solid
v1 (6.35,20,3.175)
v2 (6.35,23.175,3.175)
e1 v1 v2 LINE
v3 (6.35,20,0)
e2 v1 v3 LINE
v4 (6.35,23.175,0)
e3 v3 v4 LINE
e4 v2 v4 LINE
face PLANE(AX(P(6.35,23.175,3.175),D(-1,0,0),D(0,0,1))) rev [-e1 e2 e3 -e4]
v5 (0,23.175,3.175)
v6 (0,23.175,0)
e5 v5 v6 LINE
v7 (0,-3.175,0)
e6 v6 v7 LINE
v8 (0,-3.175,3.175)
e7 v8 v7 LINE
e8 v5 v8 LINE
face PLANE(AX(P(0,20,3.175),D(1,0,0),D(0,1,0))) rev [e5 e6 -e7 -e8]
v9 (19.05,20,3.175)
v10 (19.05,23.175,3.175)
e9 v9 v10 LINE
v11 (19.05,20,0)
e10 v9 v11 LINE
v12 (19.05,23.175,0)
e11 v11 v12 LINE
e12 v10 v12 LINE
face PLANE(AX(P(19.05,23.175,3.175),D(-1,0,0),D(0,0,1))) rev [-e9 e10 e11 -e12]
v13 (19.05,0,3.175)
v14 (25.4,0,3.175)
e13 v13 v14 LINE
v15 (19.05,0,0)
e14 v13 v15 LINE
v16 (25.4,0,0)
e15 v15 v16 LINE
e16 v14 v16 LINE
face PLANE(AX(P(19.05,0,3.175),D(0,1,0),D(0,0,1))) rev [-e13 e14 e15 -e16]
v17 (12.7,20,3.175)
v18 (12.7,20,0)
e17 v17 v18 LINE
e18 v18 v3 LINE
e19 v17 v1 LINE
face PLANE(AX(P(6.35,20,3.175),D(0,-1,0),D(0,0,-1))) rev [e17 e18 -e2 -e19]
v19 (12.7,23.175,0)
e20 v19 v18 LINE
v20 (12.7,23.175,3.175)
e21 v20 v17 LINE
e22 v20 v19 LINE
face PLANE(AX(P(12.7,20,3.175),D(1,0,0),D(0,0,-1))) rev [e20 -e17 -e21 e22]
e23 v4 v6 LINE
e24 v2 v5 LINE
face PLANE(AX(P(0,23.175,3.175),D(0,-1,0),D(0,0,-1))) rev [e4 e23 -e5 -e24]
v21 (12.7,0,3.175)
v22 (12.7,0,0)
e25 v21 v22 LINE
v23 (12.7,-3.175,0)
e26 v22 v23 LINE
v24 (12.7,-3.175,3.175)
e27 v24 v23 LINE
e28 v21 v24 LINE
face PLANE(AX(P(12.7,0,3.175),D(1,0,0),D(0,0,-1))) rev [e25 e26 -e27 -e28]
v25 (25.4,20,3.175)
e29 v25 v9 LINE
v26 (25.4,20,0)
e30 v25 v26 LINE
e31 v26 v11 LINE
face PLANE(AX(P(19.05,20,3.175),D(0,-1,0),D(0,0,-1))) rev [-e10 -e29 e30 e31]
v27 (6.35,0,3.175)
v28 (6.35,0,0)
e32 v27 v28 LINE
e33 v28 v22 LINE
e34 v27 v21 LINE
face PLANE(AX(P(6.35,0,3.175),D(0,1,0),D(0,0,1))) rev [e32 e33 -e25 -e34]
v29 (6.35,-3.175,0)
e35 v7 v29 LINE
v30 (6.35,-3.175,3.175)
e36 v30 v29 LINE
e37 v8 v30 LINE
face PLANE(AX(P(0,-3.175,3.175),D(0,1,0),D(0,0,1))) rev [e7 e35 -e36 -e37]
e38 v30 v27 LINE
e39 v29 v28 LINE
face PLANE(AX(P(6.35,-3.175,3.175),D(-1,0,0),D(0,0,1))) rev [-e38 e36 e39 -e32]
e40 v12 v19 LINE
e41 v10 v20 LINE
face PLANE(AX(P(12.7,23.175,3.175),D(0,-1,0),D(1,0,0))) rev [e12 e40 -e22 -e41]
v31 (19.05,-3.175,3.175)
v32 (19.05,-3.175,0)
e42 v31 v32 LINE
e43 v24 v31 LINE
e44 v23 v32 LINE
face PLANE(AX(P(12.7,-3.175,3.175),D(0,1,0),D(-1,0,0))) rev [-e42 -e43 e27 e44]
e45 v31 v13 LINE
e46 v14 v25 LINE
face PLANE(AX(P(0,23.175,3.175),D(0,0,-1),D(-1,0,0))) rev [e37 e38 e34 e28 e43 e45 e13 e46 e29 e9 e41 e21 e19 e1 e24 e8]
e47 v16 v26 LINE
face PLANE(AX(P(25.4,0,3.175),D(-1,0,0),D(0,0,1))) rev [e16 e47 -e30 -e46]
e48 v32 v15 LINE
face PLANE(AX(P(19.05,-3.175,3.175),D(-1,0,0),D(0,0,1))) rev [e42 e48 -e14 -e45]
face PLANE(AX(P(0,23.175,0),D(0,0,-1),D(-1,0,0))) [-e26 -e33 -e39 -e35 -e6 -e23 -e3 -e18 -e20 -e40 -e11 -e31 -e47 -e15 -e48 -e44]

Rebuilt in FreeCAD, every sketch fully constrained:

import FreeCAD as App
import Part
import Sketcher

V = App.Vector
Q = App.Units.Quantity


def add_polygon(sketch, points):
    """Adds a closed chain of lines whose ends are joined by coincident constraints."""
    first, n = sketch.GeometryCount, len(points)
    for a, b in zip(points, points[1:] + points[:1]):
        sketch.addGeometry(Part.LineSegment(App.Vector(*a, 0), App.Vector(*b, 0)), False)
    for i in range(n):
        sketch.addConstraint(Sketcher.Constraint("Coincident", first + i, 2, first + (i + 1) % n, 1))

doc = App.newDocument("Part")
body = doc.addObject("PartDesign::Body", "Body")

# Sketch on XY plane
sketch1 = doc.addObject("Sketcher::SketchObject", "Sketch")
body.addObject(sketch1)
sketch1.AttachmentSupport = (doc.XY_Plane, [""])
sketch1.MapMode = "FlatFace"
add_polygon(sketch1, [(0, -3.2), (6.3, -3.2), (6.3, 0), (12.7, 0), (12.7, -3.2), (19.1, -3.2), (19.1, 0), (25.4, 0), (25.4, 20), (19.1, 20), (19.1, 23.2), (12.7, 23.2), (12.7, 20), (6.3, 20), (6.3, 23.2), (0, 23.2)])  # lines 0-15
sketch1.addConstraint([
    Sketcher.Constraint("Horizontal", 0),
    Sketcher.Constraint("Vertical", 1),
    Sketcher.Constraint("Horizontal", 2),
    Sketcher.Constraint("Vertical", 3),
    Sketcher.Constraint("Horizontal", 4),
    Sketcher.Constraint("Vertical", 5),
    Sketcher.Constraint("Horizontal", 6),
    Sketcher.Constraint("Vertical", 7),
    Sketcher.Constraint("Horizontal", 8),
    Sketcher.Constraint("Vertical", 9),
    Sketcher.Constraint("Horizontal", 10),
    Sketcher.Constraint("Vertical", 11),
    Sketcher.Constraint("Horizontal", 12),
    Sketcher.Constraint("Vertical", 13),
    Sketcher.Constraint("Horizontal", 14),
    Sketcher.Constraint("Vertical", 15),
    Sketcher.Constraint("PointOnObject", 1, 2, -1),
    Sketcher.Constraint("PointOnObject", 5, 2, -1),
    Sketcher.Constraint("PointOnObject", 14, 2, -2),
    Sketcher.Constraint("Horizontal", 0, 2, 3, 2),
    Sketcher.Constraint("Horizontal", 8, 2, 11, 2),
    Sketcher.Constraint("Horizontal", 10, 2, 13, 2),
    Sketcher.Constraint("Vertical", 5, 2, 8, 2),
    Sketcher.Constraint("Vertical", 3, 2, 10, 2),
    Sketcher.Constraint("Vertical", 1, 2, 12, 2),
    Sketcher.Constraint("Equal", 0, 2),
    Sketcher.Constraint("Equal", 2, 4),
    Sketcher.Constraint("Equal", 4, 6),
    Sketcher.Constraint("Equal", 5, 9),
    Sketcher.Constraint("DistanceX", -1, 1, 6, 2, Q("1 in")),
    Sketcher.Constraint("DistanceY", 1, 1, 1, 2, Q("0.125 in")),
    Sketcher.Constraint("DistanceY", 7, 1, 7, 2, Q("20 mm")),
])
pad1 = doc.addObject("PartDesign::Pad", "Pad")
body.addObject(pad1)
pad1.Profile = sketch1
pad1.Length = Q("0.125 in")

doc.recompute()
